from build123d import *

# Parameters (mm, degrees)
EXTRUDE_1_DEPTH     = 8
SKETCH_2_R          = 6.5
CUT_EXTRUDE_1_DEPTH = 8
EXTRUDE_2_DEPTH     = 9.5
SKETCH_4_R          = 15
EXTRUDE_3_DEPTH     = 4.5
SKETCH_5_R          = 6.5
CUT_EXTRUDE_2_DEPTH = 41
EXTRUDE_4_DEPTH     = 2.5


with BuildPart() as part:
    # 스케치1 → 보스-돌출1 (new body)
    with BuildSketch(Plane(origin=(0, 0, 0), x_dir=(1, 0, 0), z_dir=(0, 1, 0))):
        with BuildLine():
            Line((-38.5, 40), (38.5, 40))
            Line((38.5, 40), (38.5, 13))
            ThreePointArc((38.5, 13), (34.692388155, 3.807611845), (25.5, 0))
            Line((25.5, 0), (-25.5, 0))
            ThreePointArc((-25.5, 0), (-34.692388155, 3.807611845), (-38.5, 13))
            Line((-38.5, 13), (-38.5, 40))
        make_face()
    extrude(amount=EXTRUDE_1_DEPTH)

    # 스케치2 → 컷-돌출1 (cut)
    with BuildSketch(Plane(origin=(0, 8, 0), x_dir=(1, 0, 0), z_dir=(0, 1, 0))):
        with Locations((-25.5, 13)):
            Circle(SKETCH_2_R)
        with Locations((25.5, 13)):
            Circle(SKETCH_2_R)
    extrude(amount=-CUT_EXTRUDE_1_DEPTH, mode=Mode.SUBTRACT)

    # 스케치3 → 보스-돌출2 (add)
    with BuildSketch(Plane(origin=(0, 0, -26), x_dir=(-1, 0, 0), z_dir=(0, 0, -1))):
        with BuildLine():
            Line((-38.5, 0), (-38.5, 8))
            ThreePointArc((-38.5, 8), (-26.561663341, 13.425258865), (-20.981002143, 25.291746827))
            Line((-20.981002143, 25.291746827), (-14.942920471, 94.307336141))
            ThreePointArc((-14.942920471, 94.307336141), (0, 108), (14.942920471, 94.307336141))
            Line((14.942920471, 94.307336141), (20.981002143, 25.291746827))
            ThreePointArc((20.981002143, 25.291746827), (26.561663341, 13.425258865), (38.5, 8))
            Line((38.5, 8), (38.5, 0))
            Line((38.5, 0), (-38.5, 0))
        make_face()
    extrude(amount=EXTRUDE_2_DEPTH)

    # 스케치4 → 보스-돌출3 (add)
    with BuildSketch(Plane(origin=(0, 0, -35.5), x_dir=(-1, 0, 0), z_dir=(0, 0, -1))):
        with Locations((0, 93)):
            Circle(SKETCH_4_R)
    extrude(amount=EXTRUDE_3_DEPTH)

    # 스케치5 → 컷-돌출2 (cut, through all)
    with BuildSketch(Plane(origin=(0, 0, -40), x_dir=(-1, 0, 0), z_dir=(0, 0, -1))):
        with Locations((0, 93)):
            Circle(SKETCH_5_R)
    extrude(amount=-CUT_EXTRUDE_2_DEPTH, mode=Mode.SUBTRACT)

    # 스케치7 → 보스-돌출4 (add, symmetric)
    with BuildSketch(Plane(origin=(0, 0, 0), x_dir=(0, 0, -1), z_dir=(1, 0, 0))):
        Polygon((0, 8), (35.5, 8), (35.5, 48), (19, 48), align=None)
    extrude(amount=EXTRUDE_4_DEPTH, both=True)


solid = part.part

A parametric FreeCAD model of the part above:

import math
import FreeCAD as App
import Part
import Sketcher
Q = App.Units.Quantity

doc = App.newDocument("Part")
body = doc.addObject("PartDesign::Body", "Body")

# Sketch on XZ plane
sketch1 = body.newObject("Sketcher::SketchObject", "Sketch")
sketch1.AttachmentSupport = (doc.getObject("XZ_Plane"), [""])
sketch1.MapMode = "FlatFace"
sketch1.addGeometry(Part.LineSegment(App.Vector(38, -40, 0), App.Vector(-38, -40, 0)), False)
sketch1.addGeometry(Part.LineSegment(App.Vector(-38, -40, 0), App.Vector(-38, -13, 0)), False)
sketch1.addGeometry(Part.ArcOfCircle(Part.Circle(App.Vector(-25, -13, 0), App.Vector(0, 0, 1), 13), math.radians(90), math.radians(180)), False)
sketch1.addGeometry(Part.LineSegment(App.Vector(-26, 0, 0), App.Vector(26, 0, 0)), False)
sketch1.addGeometry(Part.ArcOfCircle(Part.Circle(App.Vector(25, -13, 0), App.Vector(0, 0, 1), 13), math.radians(0), math.radians(90)), False)
sketch1.addGeometry(Part.LineSegment(App.Vector(38, -13, 0), App.Vector(38, -40, 0)), False)
sketch1.addConstraint(Sketcher.Constraint("Coincident", 0, 2, 1, 1))
sketch1.addConstraint(Sketcher.Constraint("Tangent", 1, 2, 2, 2))
sketch1.addConstraint(Sketcher.Constraint("Tangent", 2, 1, 3, 1))
sketch1.addConstraint(Sketcher.Constraint("Tangent", 3, 2, 4, 2))
sketch1.addConstraint(Sketcher.Constraint("Tangent", 4, 1, 5, 1))
sketch1.addConstraint(Sketcher.Constraint("Coincident", 5, 2, 0, 1))
sketch1.addConstraint(Sketcher.Constraint("Horizontal", 0))
sketch1.addConstraint(Sketcher.Constraint("Vertical", 1))
sketch1.addConstraint(Sketcher.Constraint("Horizontal", 3))
sketch1.addConstraint(Sketcher.Constraint("Vertical", 5))
sketch1.addConstraint(Sketcher.Constraint("Equal", 2, 4))
sketch1.addConstraint(Sketcher.Constraint("Symmetric", 2, 1, 3, 2, -1, 1))
sketch1.addConstraint(Sketcher.Constraint("Radius", 2, Q("13 mm")))
sketch1.addConstraint(Sketcher.Constraint("DistanceX", 0, 2, 0, 1, Q("77 mm")))
sketch1.addConstraint(Sketcher.Constraint("DistanceY", 1, 1, 1, 2, Q("27 mm")))
pad1 = body.newObject("PartDesign::Pad", "Pad")
pad1.Profile = sketch1
pad1.Length = 8
pad1.Reversed = True

# Sketch on XZ plane
sketch2 = body.newObject("Sketcher::SketchObject", "Sketch001")
sketch2.AttachmentSupport = (doc.getObject("XZ_Plane"), [""])
sketch2.MapMode = "FlatFace"
sketch2.AttachmentOffset = App.Placement(App.Vector(0, 0, -8), App.Rotation())
sketch2.addGeometry(Part.Circle(App.Vector(-26, -13, 0), App.Vector(0, 0, 1), 6), False)
sketch2.addGeometry(Part.Circle(App.Vector(26, -13, 0), App.Vector(0, 0, 1), 6), False)
sketch2.addConstraint(Sketcher.Constraint("Equal", 0, 1))
sketch2.addConstraint(Sketcher.Constraint("Symmetric", 0, 3, 1, 3, -2))
sketch2.addConstraint(Sketcher.Constraint("Diameter", 0, Q("13 mm")))
sketch2.addConstraint(Sketcher.Constraint("DistanceY", 0, 3, -1, 1, Q("13 mm")))
sketch2.addConstraint(Sketcher.Constraint("DistanceX", 0, 3, 1, 3, Q("51 mm")))
pocket1 = body.newObject("PartDesign::Pocket", "Pocket")
pocket1.Profile = sketch2
pocket1.Length = 8
pocket1.Reversed = True

# Sketch on XY plane
sketch3 = body.newObject("Sketcher::SketchObject", "Sketch002")
sketch3.AttachmentSupport = (doc.getObject("XY_Plane"), [""])
sketch3.MapMode = "FlatFace"
sketch3.AttachmentOffset = App.Placement(App.Vector(0, 0, -26), App.Rotation())
sketch3.addGeometry(Part.LineSegment(App.Vector(38, 8, 0), App.Vector(38, 0, 0)), False)
sketch3.addGeometry(Part.LineSegment(App.Vector(38, 0, 0), App.Vector(-38, 0, 0)), False)
sketch3.addGeometry(Part.LineSegment(App.Vector(-38, 0, 0), App.Vector(-38, 8, 0)), False)
sketch3.addGeometry(Part.ArcOfCircle(Part.Circle(App.Vector(-40, 27, 0), App.Vector(0, 0, 1), 19), math.radians(-86), math.radians(-5)), False)
sketch3.addGeometry(Part.LineSegment(App.Vector(-21, 25, 0), App.Vector(-15, 94, 0)), False)
sketch3.addGeometry(Part.ArcOfCircle(Part.Circle(App.Vector(0, 93, 0), App.Vector(0, 0, 1), 15), math.radians(5), math.radians(175)), False)
sketch3.addGeometry(Part.LineSegment(App.Vector(15, 94, 0), App.Vector(21, 25, 0)), False)
sketch3.addGeometry(Part.ArcOfCircle(Part.Circle(App.Vector(40, 27, 0), App.Vector(0, 0, 1), 19), math.radians(-175), math.radians(-94)), False)
sketch3.addConstraint(Sketcher.Constraint("Coincident", 0, 2, 1, 1))
sketch3.addConstraint(Sketcher.Constraint("Coincident", 1, 2, 2, 1))
sketch3.addConstraint(Sketcher.Constraint("Coincident", 2, 2, 3, 1))
sketch3.addConstraint(Sketcher.Constraint("Tangent", 3, 2, 4, 1))
sketch3.addConstraint(Sketcher.Constraint("Tangent", 4, 2, 5, 2))
sketch3.addConstraint(Sketcher.Constraint("Tangent", 5, 1, 6, 1))
sketch3.addConstraint(Sketcher.Constraint("Tangent", 6, 2, 7, 1))
sketch3.addConstraint(Sketcher.Constraint("Coincident", 7, 2, 0, 1))
sketch3.addConstraint(Sketcher.Constraint("Vertical", 0))
sketch3.addConstraint(Sketcher.Constraint("Horizontal", 1))
sketch3.addConstraint(Sketcher.Constraint("Vertical", 2))
sketch3.addConstraint(Sketcher.Constraint("Equal", 3, 7))
sketch3.addConstraint(Sketcher.Constraint("Symmetric", 0, 2, 1, 2, -1, 1))
sketch3.addConstraint(Sketcher.Constraint("Symmetric", 3, 3, 7, 3, -2))
sketch3.addConstraint(Sketcher.Constraint("PointOnObject", 5, 3, -2))
sketch3.addConstraint(Sketcher.Constraint("Radius", 3, Q("19 mm")))
sketch3.addConstraint(Sketcher.Constraint("Radius", 5, Q("15 mm")))
sketch3.addConstraint(Sketcher.Constraint("DistanceX", 1, 2, 1, 1, Q("77 mm")))
sketch3.addConstraint(Sketcher.Constraint("DistanceY", 0, 2, 0, 1, Q("8 mm")))
sketch3.addConstraint(Sketcher.Constraint("Angle", 4, Q("85 deg")))
sketch3.addConstraint(Sketcher.Constraint("DistanceY", -1, 1, 5, 3, Q("93 mm")))
pad2 = body.newObject("PartDesign::Pad", "Pad001")
pad2.Profile = sketch3
pad2.Length = 9.5
pad2.Reversed = True

# Sketch on XY plane
sketch4 = body.newObject("Sketcher::SketchObject", "Sketch003")
sketch4.AttachmentSupport = (doc.getObject("XY_Plane"), [""])
sketch4.MapMode = "FlatFace"
sketch4.AttachmentOffset = App.Placement(App.Vector(0, 0, -35.5), App.Rotation())
sketch4.addGeometry(Part.Circle(App.Vector(0, 93, 0), App.Vector(0, 0, 1), 15), False)
sketch4.addConstraint(Sketcher.Constraint("PointOnObject", 0, 3, -2))
sketch4.addConstraint(Sketcher.Constraint("Diameter", 0, Q("30 mm")))
sketch4.addConstraint(Sketcher.Constraint("DistanceY", -1, 1, 0, 3, Q("93 mm")))
pad3 = body.newObject("PartDesign::Pad", "Pad002")
pad3.Profile = sketch4
pad3.Length = 4.5
pad3.Reversed = True

# Sketch on XY plane
sketch5 = body.newObject("Sketcher::SketchObject", "Sketch004")
sketch5.AttachmentSupport = (doc.getObject("XY_Plane"), [""])
sketch5.MapMode = "FlatFace"
sketch5.AttachmentOffset = App.Placement(App.Vector(0, 0, -40), App.Rotation())
sketch5.addGeometry(Part.Circle(App.Vector(0, 93, 0), App.Vector(0, 0, 1), 6), False)
sketch5.addConstraint(Sketcher.Constraint("PointOnObject", 0, 3, -2))
sketch5.addConstraint(Sketcher.Constraint("Diameter", 0, Q("13 mm")))
sketch5.addConstraint(Sketcher.Constraint("DistanceY", -1, 1, 0, 3, Q("93 mm")))
pocket2 = body.newObject("PartDesign::Pocket", "Pocket001")
pocket2.Profile = sketch5
pocket2.Type = "ThroughAll"
pocket2.Reversed = True

# Sketch on YZ plane
sketch6 = body.newObject("Sketcher::SketchObject", "Sketch005")
sketch6.AttachmentSupport = (doc.getObject("YZ_Plane"), [""])
sketch6.MapMode = "FlatFace"
sketch6.addGeometry(Part.LineSegment(App.Vector(8, 0, 0), App.Vector(8, -36, 0)), False)
sketch6.addGeometry(Part.LineSegment(App.Vector(8, -36, 0), App.Vector(48, -36, 0)), False)
sketch6.addGeometry(Part.LineSegment(App.Vector(48, -36, 0), App.Vector(48, -19, 0)), False)
sketch6.addGeometry(Part.LineSegment(App.Vector(48, -19, 0), App.Vector(8, 0, 0)), False)
sketch6.addConstraint(Sketcher.Constraint("Coincident", 0, 2, 1, 1))
sketch6.addConstraint(Sketcher.Constraint("Coincident", 1, 2, 2, 1))
sketch6.addConstraint(Sketcher.Constraint("Coincident", 2, 2, 3, 1))
sketch6.addConstraint(Sketcher.Constraint("Coincident", 3, 2, 0, 1))
sketch6.addConstraint(Sketcher.Constraint("Vertical", 0))
sketch6.addConstraint(Sketcher.Constraint("Horizontal", 1))
sketch6.addConstraint(Sketcher.Constraint("Vertical", 2))
sketch6.addConstraint(Sketcher.Constraint("PointOnObject", 3, 2, -1))
sketch6.addConstraint(Sketcher.Constraint("DistanceX", 1, 1, 1, 2, Q("40 mm")))
sketch6.addConstraint(Sketcher.Constraint("DistanceY", 0, 2, 0, 1, Q("35.5 mm")))
sketch6.addConstraint(Sketcher.Constraint("DistanceY", 2, 1, 2, 2, Q("16.5 mm")))
sketch6.addConstraint(Sketcher.Constraint("DistanceX", -1, 1, 0, 2, Q("8 mm")))
pad4 = body.newObject("PartDesign::Pad", "Pad003")
pad4.Profile = sketch6
pad4.Length = 5
pad4.Midplane = True

doc.recompute()
